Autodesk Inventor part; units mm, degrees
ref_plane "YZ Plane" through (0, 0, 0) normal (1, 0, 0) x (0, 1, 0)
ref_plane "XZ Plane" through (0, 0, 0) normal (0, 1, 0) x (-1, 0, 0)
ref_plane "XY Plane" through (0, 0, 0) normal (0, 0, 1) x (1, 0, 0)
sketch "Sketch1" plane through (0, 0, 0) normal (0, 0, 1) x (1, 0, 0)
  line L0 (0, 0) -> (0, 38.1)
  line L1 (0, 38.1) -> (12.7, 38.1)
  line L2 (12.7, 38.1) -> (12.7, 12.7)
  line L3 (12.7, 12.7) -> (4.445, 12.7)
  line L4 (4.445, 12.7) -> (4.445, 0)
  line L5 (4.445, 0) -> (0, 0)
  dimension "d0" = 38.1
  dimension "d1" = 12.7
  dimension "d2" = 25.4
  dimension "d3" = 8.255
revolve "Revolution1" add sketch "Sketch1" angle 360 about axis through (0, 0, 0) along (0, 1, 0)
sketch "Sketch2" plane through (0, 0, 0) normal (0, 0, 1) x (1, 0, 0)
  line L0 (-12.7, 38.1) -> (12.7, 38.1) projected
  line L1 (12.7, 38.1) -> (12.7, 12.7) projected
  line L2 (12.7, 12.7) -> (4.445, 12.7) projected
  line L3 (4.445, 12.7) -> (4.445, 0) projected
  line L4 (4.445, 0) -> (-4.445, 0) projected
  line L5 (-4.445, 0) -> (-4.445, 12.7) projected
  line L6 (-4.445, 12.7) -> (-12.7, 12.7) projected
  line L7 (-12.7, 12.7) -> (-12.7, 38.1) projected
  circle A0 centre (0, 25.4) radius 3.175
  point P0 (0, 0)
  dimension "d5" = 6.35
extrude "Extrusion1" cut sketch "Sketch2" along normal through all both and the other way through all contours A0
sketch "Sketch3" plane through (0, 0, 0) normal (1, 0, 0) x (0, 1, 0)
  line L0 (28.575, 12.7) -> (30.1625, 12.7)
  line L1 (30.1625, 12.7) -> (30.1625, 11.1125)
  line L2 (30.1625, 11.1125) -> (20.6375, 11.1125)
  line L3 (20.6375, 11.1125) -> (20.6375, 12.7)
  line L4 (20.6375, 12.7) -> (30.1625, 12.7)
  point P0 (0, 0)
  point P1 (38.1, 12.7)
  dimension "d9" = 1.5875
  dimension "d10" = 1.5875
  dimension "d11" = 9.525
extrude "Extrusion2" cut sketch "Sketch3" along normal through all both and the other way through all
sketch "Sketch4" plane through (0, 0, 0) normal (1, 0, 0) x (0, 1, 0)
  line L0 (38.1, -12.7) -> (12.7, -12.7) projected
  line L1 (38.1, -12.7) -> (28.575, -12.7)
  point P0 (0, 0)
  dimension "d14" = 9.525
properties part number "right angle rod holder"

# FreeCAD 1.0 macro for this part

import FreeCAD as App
import Part
import Sketcher
Q = App.Units.Quantity

doc = App.newDocument("Part")
params = doc.addObject("Spreadsheet::Sheet", "Params")
for row, (alias, value) in enumerate([
    ("sketch1_height", "1 in"),
    ("sketch1_width", "0.5 in"),
    ("sketch1_width2", "0.325 in"),
    ("revolution_angle", "360 deg"),
    ("sketch2_diameter", "0.25 in"),
    ("sketch3_width", "0.375 in"),
    ("sketch3_height", "0.0625 in"),
], start=1):
    params.set(f"A{row}", alias)
    params.set(f"B{row}", "=" + value)
    params.setAlias(f"B{row}", alias)

body = doc.addObject("PartDesign::Body", "Body")

# Sketch on XY plane
sketch1 = doc.addObject("Sketcher::SketchObject", "Sketch")
body.addObject(sketch1)
sketch1.AttachmentSupport = (doc.XY_Plane, [""])
sketch1.MapMode = "FlatFace"
sketch1.addGeometry(Part.LineSegment(App.Vector(0, 38.1, 0), App.Vector(0, 0, 0)), False)
sketch1.addGeometry(Part.LineSegment(App.Vector(0, 0, 0), App.Vector(4.4, 0, 0)), False)
sketch1.addGeometry(Part.LineSegment(App.Vector(4.4, 0, 0), App.Vector(4.4, 12.7, 0)), False)
sketch1.addGeometry(Part.LineSegment(App.Vector(4.4, 12.7, 0), App.Vector(12.7, 12.7, 0)), False)
sketch1.addGeometry(Part.LineSegment(App.Vector(12.7, 12.7, 0), App.Vector(12.7, 38.1, 0)), False)
sketch1.addGeometry(Part.LineSegment(App.Vector(12.7, 38.1, 0), App.Vector(0, 38.1, 0)), False)
sketch1.addConstraint(Sketcher.Constraint("Coincident", 0, 2, 1, 1))
sketch1.addConstraint(Sketcher.Constraint("Coincident", 1, 2, 2, 1))
sketch1.addConstraint(Sketcher.Constraint("Coincident", 2, 2, 3, 1))
sketch1.addConstraint(Sketcher.Constraint("Coincident", 3, 2, 4, 1))
sketch1.addConstraint(Sketcher.Constraint("Coincident", 4, 2, 5, 1))
sketch1.addConstraint(Sketcher.Constraint("Coincident", 5, 2, 0, 1))
sketch1.addConstraint(Sketcher.Constraint("Vertical", 0))
sketch1.addConstraint(Sketcher.Constraint("Horizontal", 1))
sketch1.addConstraint(Sketcher.Constraint("Vertical", 2))
sketch1.addConstraint(Sketcher.Constraint("Horizontal", 3))
sketch1.addConstraint(Sketcher.Constraint("Vertical", 4))
sketch1.addConstraint(Sketcher.Constraint("Horizontal", 5))
sketch1.addConstraint(Sketcher.Constraint("Coincident", 0, 2, -1, 1))
sketch1.addConstraint(Sketcher.Constraint("Equal", 5, 2))
sketch1.addConstraint(Sketcher.Constraint("DistanceY", 4, 1, 4, 2, Q("1 in")))
sketch1.addConstraint(Sketcher.Constraint("DistanceX", 5, 2, 5, 1, Q("0.5 in")))
sketch1.addConstraint(Sketcher.Constraint("DistanceX", 3, 1, 3, 2, Q("0.325 in")))
sketch1.setExpression("Constraints[14]", "Params.sketch1_height")
sketch1.setExpression("Constraints[15]", "Params.sketch1_width")
sketch1.setExpression("Constraints[16]", "Params.sketch1_width2")
revolution = doc.addObject("PartDesign::Revolution", "Revolution")
body.addObject(revolution)
revolution.Profile = sketch1
revolution.ReferenceAxis = (sketch1, ["V_Axis"])
revolution.setExpression("Angle", "Params.revolution_angle")

# Sketch on XY plane
sketch2 = doc.addObject("Sketcher::SketchObject", "Sketch001")
body.addObject(sketch2)
sketch2.AttachmentSupport = (doc.XY_Plane, [""])
sketch2.MapMode = "FlatFace"
sketch2.addGeometry(Part.Circle(App.Vector(0, 25.4, 0), App.Vector(0, 0, 1), 3.2), False)
sketch2.addConstraint(Sketcher.Constraint("PointOnObject", 0, 3, -2))
sketch2.addConstraint(Sketcher.Constraint("Diameter", 0, Q("0.25 in")))
sketch2.addConstraint(Sketcher.Constraint("DistanceY", -1, 1, 0, 3, Q("1 in")))
sketch2.setExpression("Constraints[1]", "Params.sketch2_diameter")
pocket1 = doc.addObject("PartDesign::Pocket", "Pocket")
body.addObject(pocket1)
pocket1.Profile = sketch2
pocket1.Type = "ThroughAll"
pocket1.Midplane = True

# Sketch on YZ plane
sketch3 = doc.addObject("Sketcher::SketchObject", "Sketch002")
body.addObject(sketch3)
sketch3.AttachmentSupport = (doc.YZ_Plane, [""])
sketch3.MapMode = "FlatFace"
sketch3.addGeometry(Part.LineSegment(App.Vector(30.2, 12.7, 0), App.Vector(20.6, 12.7, 0)), False)
sketch3.addGeometry(Part.LineSegment(App.Vector(20.6, 12.7, 0), App.Vector(20.6, 11.1, 0)), False)
sketch3.addGeometry(Part.LineSegment(App.Vector(20.6, 11.1, 0), App.Vector(30.2, 11.1, 0)), False)
sketch3.addGeometry(Part.LineSegment(App.Vector(30.2, 11.1, 0), App.Vector(30.2, 12.7, 0)), False)
sketch3.addConstraint(Sketcher.Constraint("Coincident", 0, 2, 1, 1))
sketch3.addConstraint(Sketcher.Constraint("Coincident", 1, 2, 2, 1))
sketch3.addConstraint(Sketcher.Constraint("Coincident", 2, 2, 3, 1))
sketch3.addConstraint(Sketcher.Constraint("Coincident", 3, 2, 0, 1))
sketch3.addConstraint(Sketcher.Constraint("Horizontal", 0))
sketch3.addConstraint(Sketcher.Constraint("Vertical", 1))
sketch3.addConstraint(Sketcher.Constraint("Horizontal", 2))
sketch3.addConstraint(Sketcher.Constraint("Vertical", 3))
sketch3.addConstraint(Sketcher.Constraint("DistanceX", 0, 2, 0, 1, Q("0.375 in")))
sketch3.addConstraint(Sketcher.Constraint("DistanceY", 1, 2, 1, 1, Q("0.0625 in")))
sketch3.addConstraint(Sketcher.Constraint("DistanceY", -1, 1, 0, 2, Q("0.5 in")))
sketch3.addConstraint(Sketcher.Constraint("DistanceX", -1, 1, 0, 2, Q("0.8125 in")))
sketch3.setExpression("Constraints[8]", "Params.sketch3_width")
sketch3.setExpression("Constraints[9]", "Params.sketch3_height")
pocket2 = doc.addObject("PartDesign::Pocket", "Pocket001")
body.addObject(pocket2)
pocket2.Profile = sketch3
pocket2.Type = "ThroughAll"
pocket2.Midplane = True

doc.recompute()
